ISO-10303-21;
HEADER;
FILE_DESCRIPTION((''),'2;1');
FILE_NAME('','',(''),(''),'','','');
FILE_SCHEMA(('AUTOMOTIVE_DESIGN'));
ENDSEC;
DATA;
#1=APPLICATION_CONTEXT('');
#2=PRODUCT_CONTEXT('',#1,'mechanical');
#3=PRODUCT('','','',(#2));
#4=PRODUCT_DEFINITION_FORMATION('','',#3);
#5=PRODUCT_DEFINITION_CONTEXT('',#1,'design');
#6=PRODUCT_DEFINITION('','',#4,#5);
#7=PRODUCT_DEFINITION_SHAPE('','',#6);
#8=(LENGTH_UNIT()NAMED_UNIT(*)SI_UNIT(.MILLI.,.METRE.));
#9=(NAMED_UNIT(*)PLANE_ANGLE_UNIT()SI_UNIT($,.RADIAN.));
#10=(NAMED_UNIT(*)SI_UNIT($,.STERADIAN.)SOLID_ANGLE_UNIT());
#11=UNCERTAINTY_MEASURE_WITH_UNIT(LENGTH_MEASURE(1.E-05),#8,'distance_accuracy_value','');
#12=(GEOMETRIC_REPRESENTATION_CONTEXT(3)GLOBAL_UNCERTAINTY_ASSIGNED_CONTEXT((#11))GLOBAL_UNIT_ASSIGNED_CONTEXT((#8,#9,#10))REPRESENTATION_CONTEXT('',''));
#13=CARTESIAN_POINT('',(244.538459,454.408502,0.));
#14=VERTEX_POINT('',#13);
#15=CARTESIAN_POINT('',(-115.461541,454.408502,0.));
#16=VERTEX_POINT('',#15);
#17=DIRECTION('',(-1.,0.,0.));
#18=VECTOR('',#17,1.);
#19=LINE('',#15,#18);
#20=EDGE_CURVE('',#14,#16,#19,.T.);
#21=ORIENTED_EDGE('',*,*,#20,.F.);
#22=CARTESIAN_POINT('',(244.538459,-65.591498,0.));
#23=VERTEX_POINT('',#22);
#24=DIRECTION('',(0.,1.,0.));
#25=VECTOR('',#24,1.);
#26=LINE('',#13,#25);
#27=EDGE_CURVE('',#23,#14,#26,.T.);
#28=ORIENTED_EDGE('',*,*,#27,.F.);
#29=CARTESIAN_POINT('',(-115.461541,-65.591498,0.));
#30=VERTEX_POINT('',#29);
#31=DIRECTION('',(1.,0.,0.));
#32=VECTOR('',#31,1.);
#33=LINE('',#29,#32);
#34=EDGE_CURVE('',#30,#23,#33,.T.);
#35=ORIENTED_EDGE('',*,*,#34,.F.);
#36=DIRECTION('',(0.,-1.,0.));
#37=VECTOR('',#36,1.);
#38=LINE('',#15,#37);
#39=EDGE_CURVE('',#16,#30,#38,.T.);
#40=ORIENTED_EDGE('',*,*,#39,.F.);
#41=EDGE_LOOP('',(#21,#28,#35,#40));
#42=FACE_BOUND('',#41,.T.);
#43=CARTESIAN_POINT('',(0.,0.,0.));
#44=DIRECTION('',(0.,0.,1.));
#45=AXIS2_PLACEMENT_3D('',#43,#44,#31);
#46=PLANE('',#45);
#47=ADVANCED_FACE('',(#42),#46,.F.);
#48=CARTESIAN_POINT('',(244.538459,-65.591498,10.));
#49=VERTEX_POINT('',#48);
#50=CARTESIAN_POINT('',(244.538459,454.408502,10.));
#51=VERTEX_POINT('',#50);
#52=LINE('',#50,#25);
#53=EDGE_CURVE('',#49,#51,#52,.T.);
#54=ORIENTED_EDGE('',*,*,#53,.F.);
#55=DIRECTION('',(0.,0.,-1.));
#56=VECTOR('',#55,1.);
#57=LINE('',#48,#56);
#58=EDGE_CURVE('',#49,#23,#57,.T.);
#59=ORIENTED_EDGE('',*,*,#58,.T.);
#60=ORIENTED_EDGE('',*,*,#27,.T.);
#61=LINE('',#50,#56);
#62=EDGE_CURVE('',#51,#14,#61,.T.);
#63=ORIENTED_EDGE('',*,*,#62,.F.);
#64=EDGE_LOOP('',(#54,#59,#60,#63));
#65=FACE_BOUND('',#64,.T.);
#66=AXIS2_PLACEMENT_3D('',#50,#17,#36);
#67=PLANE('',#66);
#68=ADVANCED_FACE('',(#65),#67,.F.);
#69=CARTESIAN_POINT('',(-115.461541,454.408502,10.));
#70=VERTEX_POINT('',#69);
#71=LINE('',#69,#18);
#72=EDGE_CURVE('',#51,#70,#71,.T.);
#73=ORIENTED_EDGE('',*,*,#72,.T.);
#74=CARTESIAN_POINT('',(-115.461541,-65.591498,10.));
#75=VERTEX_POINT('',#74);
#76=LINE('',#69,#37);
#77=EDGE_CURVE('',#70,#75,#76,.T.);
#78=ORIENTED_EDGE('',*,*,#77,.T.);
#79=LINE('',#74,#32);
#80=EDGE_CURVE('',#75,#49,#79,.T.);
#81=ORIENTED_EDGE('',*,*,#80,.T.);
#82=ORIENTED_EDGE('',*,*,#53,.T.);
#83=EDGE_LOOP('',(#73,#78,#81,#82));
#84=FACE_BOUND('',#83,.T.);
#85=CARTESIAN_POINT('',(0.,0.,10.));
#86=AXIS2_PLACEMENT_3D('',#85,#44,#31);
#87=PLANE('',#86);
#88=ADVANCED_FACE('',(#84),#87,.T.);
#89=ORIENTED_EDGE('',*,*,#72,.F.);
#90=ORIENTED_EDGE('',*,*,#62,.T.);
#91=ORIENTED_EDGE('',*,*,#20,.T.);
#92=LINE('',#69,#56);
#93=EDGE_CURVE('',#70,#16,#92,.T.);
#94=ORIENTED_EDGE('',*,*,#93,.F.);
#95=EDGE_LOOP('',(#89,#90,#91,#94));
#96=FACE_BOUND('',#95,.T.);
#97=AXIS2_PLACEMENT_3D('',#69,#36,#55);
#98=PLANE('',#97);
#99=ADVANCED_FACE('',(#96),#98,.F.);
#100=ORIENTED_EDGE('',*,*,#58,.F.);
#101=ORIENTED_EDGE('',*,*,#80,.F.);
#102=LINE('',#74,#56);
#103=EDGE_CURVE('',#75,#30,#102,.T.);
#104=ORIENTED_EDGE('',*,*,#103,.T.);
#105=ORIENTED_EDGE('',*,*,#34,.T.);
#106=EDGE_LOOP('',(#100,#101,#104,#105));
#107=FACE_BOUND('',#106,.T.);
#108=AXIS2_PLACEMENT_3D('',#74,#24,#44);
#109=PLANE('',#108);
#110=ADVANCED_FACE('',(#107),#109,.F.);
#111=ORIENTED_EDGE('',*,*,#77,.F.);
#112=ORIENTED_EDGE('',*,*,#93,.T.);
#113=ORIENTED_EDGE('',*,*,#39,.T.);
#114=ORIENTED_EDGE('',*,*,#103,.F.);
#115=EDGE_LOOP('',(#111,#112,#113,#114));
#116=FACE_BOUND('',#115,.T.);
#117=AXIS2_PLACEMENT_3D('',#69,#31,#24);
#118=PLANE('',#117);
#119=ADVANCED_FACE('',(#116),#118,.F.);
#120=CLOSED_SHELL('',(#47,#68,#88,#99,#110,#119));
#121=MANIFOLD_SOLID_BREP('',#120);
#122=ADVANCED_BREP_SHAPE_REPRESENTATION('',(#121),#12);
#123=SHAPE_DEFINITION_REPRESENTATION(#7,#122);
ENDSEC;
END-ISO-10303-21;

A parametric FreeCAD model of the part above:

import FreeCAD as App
import Part
import Sketcher
from FreeCAD import Vector

doc = App.newDocument("Part")
body = doc.addObject("PartDesign::Body", "Body")

# Sketch on XY plane
sketch1 = body.newObject("Sketcher::SketchObject", "Sketch")
sketch1.AttachmentSupport = (doc.getObject("XY_Plane"), [""])
sketch1.MapMode = "FlatFace"
sketch1.addGeometry(Part.LineSegment(Vector(-115, 454, 0), Vector(-115, -66, 0)), False)
sketch1.addGeometry(Part.LineSegment(Vector(-115, -66, 0), Vector(245, -66, 0)), False)
sketch1.addGeometry(Part.LineSegment(Vector(245, -66, 0), Vector(245, 454, 0)), False)
sketch1.addGeometry(Part.LineSegment(Vector(245, 454, 0), Vector(-115, 454, 0)), False)
sketch1.addConstraint(Sketcher.Constraint("Coincident", 0, 2, 1, 1))
sketch1.addConstraint(Sketcher.Constraint("Coincident", 1, 2, 2, 1))
sketch1.addConstraint(Sketcher.Constraint("Coincident", 2, 2, 3, 1))
sketch1.addConstraint(Sketcher.Constraint("Coincident", 3, 2, 0, 1))
sketch1.addConstraint(Sketcher.Constraint("Vertical", 0))
sketch1.addConstraint(Sketcher.Constraint("Horizontal", 1))
sketch1.addConstraint(Sketcher.Constraint("Vertical", 2))
sketch1.addConstraint(Sketcher.Constraint("Horizontal", 3))
sketch1.addConstraint(Sketcher.Constraint("DistanceX", 1, 1, 1, 2, 360.0))
sketch1.addConstraint(Sketcher.Constraint("DistanceY", 0, 2, 0, 1, 520.0))
sketch1.addConstraint(Sketcher.Constraint("DistanceY", 0, 2, -1, 1, 65.591498))
sketch1.addConstraint(Sketcher.Constraint("DistanceX", 0, 2, -1, 1, 115.461541))
pad1 = body.newObject("PartDesign::Pad", "Pad")
pad1.Profile = sketch1
pad1.Length = 10

doc.recompute()
